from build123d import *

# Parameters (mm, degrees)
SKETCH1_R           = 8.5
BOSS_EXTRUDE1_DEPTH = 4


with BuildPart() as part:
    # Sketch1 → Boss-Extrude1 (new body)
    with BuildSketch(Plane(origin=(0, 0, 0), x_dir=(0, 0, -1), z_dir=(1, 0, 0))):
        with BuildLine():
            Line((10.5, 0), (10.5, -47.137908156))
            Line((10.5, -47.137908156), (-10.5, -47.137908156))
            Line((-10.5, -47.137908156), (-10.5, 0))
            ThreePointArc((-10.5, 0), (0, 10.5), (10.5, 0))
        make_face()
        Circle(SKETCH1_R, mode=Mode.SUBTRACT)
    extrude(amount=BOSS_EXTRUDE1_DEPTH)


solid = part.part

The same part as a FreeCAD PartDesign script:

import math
import FreeCAD as App
import Part
import Sketcher

V = App.Vector

doc = App.newDocument("Part")
params = doc.addObject("Spreadsheet::Sheet", "Params")
for row, (alias, value) in enumerate([
    ("sketch1_diameter", "17 mm"),
    ("sketch1_radius", "10.5 mm"),
    ("pad1_length", "4 mm"),
], start=1):
    params.set(f"A{row}", alias)
    params.set(f"B{row}", "=" + value)
    params.setAlias(f"B{row}", alias)

body = doc.addObject("PartDesign::Body", "Body")

# Sketch on YZ plane
sketch1 = body.newObject("Sketcher::SketchObject", "Sketch")
sketch1.AttachmentSupport = (doc.getObject("YZ_Plane"), [""])
sketch1.MapMode = "FlatFace"
sketch1.addGeometry([
    Part.LineSegment(V(-47, -10, 0), V(0, -10, 0)),  # 0
    Part.ArcOfCircle(Part.Circle(V(0, 0, 0), V(0, 0, 1), 10), math.radians(-90), math.radians(90)),  # 1
    Part.LineSegment(V(0, 10, 0), V(-47, 10, 0)),  # 2
    Part.LineSegment(V(-47, 10, 0), V(-47, -10, 0)),  # 3
    Part.Circle(V(0, 0, 0), V(0, 0, 1), 8),  # 4
], False)
sketch1.addConstraint([
    Sketcher.Constraint("Tangent", 0, 2, 1, 1),
    Sketcher.Constraint("Tangent", 1, 2, 2, 1),
    Sketcher.Constraint("Coincident", 2, 2, 3, 1),
    Sketcher.Constraint("Coincident", 3, 2, 0, 1),
    Sketcher.Constraint("Horizontal", 0),
    Sketcher.Constraint("Horizontal", 2),
    Sketcher.Constraint("Vertical", 3),
    Sketcher.Constraint("Coincident", 1, 3, -1, 1),
    Sketcher.Constraint("Coincident", 4, 3, -1, 1),
    Sketcher.Constraint("Diameter", 4, 17.0),
    Sketcher.Constraint("Radius", 1, 10.5),
    Sketcher.Constraint("DistanceX", 0, 1, 0, 2, 47.137908),
])
sketch1.setExpression("Constraints[9]", "Params.sketch1_diameter")
sketch1.setExpression("Constraints[10]", "Params.sketch1_radius")
pad1 = body.newObject("PartDesign::Pad", "Pad")
pad1.Profile = sketch1
pad1.setExpression("Length", "Params.pad1_length")

doc.recompute()
